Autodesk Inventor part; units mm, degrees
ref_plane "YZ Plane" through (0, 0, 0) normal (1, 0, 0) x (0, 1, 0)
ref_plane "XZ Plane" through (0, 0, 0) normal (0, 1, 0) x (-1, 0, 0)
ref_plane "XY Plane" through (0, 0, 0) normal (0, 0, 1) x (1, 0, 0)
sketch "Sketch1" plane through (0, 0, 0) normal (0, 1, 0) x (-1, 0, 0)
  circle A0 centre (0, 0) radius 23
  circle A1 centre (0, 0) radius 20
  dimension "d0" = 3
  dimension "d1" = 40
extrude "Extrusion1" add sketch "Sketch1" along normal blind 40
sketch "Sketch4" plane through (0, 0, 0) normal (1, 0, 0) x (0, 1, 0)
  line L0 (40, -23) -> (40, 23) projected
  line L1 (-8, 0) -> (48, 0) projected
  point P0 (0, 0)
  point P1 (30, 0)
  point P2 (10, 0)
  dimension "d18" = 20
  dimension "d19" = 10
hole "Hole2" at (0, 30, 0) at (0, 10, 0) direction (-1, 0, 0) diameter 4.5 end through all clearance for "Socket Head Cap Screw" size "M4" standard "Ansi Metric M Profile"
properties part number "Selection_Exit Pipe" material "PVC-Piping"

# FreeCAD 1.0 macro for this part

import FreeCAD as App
import Part
import Sketcher

doc = App.newDocument("Part")
body = doc.addObject("PartDesign::Body", "Body")

sketch1 = body.newObject("Sketcher::SketchObject", "Sketch")
sketch1.AttachmentSupport = (doc.getObject("XZ_Plane"), [""])
sketch1.MapMode = "FlatFace"
sketch1.addGeometry([
    Part.Circle(App.Vector(0, 0, 0), App.Vector(0, 0, 1), 23),
    Part.Circle(App.Vector(0, 0, 0), App.Vector(0, 0, 1), 20),
], False)
sketch1.addConstraint([
    Sketcher.Constraint("Coincident", 0, 3, -1, 1),
    Sketcher.Constraint("Coincident", 1, 3, -1, 1),
    Sketcher.Constraint("Diameter", 1, 40.0),
    Sketcher.Constraint("Diameter", 0, 46.0),
])
pad1 = body.newObject("PartDesign::Pad", "Pad")
pad1.Profile = sketch1
pad1.Length = 40
pad1.Reversed = True

sketch2 = body.newObject("Sketcher::SketchObject", "Sketch001")
sketch2.AttachmentSupport = (doc.getObject("YZ_Plane"), [""])
sketch2.MapMode = "FlatFace"
sketch2.addGeometry([
    Part.Circle(App.Vector(30, 0, 0), App.Vector(0, 0, 1), 2.2),
    Part.Circle(App.Vector(10, 0, 0), App.Vector(0, 0, 1), 2.2),
], False)
sketch2.addConstraint([
    Sketcher.Constraint("Equal", 0, 1),
    Sketcher.Constraint("PointOnObject", 0, 3, -1),
    Sketcher.Constraint("PointOnObject", 1, 3, -1),
    Sketcher.Constraint("Diameter", 0, 4.5),
    Sketcher.Constraint("DistanceX", -1, 1, 0, 3, 30.0),
    Sketcher.Constraint("DistanceX", -1, 1, 1, 3, 10.0),
])
doc.recompute()
hole = body.newObject("PartDesign::Hole", "Hole")
hole.Profile = sketch2
hole.ThreadType = "None"
hole.Diameter = 4.5
hole.DepthType = "ThroughAll"

doc.recompute()
